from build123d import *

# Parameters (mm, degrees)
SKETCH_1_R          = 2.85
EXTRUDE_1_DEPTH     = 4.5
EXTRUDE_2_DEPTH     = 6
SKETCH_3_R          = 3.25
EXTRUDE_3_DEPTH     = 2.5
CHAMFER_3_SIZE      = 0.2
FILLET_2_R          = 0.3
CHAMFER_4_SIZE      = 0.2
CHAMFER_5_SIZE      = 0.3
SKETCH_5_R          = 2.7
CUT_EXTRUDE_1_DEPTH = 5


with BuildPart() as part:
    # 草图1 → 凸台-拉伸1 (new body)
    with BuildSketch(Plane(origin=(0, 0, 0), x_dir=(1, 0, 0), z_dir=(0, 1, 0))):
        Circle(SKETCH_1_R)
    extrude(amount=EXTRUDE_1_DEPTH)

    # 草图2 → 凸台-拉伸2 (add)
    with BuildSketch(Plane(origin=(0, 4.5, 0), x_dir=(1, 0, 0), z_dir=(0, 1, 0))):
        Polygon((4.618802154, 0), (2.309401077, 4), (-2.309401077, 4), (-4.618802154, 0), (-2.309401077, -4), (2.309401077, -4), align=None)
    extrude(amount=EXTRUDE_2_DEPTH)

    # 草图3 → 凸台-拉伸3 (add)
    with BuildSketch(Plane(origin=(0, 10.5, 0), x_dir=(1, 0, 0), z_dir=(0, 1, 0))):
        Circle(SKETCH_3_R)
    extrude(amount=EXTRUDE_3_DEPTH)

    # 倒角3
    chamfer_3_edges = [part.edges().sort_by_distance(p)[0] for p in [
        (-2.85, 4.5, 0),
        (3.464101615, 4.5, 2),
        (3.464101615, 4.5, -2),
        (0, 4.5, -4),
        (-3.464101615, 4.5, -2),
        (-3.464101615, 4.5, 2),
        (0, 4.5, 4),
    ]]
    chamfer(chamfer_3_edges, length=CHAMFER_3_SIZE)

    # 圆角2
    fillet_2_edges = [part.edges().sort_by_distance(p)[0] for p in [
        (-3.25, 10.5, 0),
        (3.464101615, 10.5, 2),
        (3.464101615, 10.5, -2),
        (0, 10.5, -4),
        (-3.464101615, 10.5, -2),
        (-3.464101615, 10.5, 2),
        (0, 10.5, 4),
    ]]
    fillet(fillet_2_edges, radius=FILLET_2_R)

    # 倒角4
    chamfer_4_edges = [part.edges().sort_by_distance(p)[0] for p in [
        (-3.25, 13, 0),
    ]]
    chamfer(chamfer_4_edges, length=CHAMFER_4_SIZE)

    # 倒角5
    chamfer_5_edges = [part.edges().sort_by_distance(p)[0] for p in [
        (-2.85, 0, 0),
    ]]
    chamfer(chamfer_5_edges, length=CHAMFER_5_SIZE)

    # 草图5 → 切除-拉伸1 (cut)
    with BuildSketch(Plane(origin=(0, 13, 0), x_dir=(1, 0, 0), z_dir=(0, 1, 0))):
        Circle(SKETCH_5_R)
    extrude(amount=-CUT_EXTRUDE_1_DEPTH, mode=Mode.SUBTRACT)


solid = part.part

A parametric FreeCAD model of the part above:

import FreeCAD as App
import Part
import Sketcher
Q = App.Units.Quantity


def edges_at(feature, points):
    """Names of the edges that pass closest to the given points."""
    edges = feature.Shape.Edges
    near = lambda p: min(range(len(edges)), key=lambda i: edges[i].distToShape(Part.Vertex(*p))[0])
    return sorted({f"Edge{near(p) + 1}" for p in points})

doc = App.newDocument("Part")
body = doc.addObject("PartDesign::Body", "Body")

# Sketch on XZ plane
sketch1 = doc.addObject("Sketcher::SketchObject", "Sketch")
body.addObject(sketch1)
sketch1.AttachmentSupport = (doc.XZ_Plane, [""])
sketch1.MapMode = "FlatFace"
sketch1.addGeometry(Part.Circle(App.Vector(0, 0, 0), App.Vector(0, 0, 1), 2.9), False)
sketch1.addConstraint(Sketcher.Constraint("Coincident", 0, 3, -1, 1))
sketch1.addConstraint(Sketcher.Constraint("Diameter", 0, 5.7))
pad1 = doc.addObject("PartDesign::Pad", "Pad")
body.addObject(pad1)
pad1.Profile = sketch1
pad1.Length = 4.5
pad1.Reversed = True

# Sketch on XZ plane
sketch2 = doc.addObject("Sketcher::SketchObject", "Sketch001")
body.addObject(sketch2)
sketch2.AttachmentSupport = (doc.XZ_Plane, [""])
sketch2.MapMode = "FlatFace"
sketch2.AttachmentOffset = App.Placement(App.Vector(0, 0, -4.5), App.Rotation())
sketch2.addGeometry(Part.LineSegment(App.Vector(4.6, 0, 0), App.Vector(2.3, -4, 0)), False)
sketch2.addGeometry(Part.LineSegment(App.Vector(2.3, -4, 0), App.Vector(-2.3, -4, 0)), False)
sketch2.addGeometry(Part.LineSegment(App.Vector(-2.3, -4, 0), App.Vector(-4.6, 0, 0)), False)
sketch2.addGeometry(Part.LineSegment(App.Vector(-4.6, 0, 0), App.Vector(-2.3, 4, 0)), False)
sketch2.addGeometry(Part.LineSegment(App.Vector(-2.3, 4, 0), App.Vector(2.3, 4, 0)), False)
sketch2.addGeometry(Part.LineSegment(App.Vector(2.3, 4, 0), App.Vector(4.6, 0, 0)), False)
sketch2.addConstraint(Sketcher.Constraint("Coincident", 0, 2, 1, 1))
sketch2.addConstraint(Sketcher.Constraint("Coincident", 1, 2, 2, 1))
sketch2.addConstraint(Sketcher.Constraint("Coincident", 2, 2, 3, 1))
sketch2.addConstraint(Sketcher.Constraint("Coincident", 3, 2, 4, 1))
sketch2.addConstraint(Sketcher.Constraint("Coincident", 4, 2, 5, 1))
sketch2.addConstraint(Sketcher.Constraint("Coincident", 5, 2, 0, 1))
sketch2.addConstraint(Sketcher.Constraint("Horizontal", 1))
sketch2.addConstraint(Sketcher.Constraint("Horizontal", 4))
sketch2.addConstraint(Sketcher.Constraint("Symmetric", 0, 2, 3, 2, -1, 1))
sketch2.addConstraint(Sketcher.Constraint("Symmetric", 2, 2, 5, 2, -1, 1))
sketch2.addConstraint(Sketcher.Constraint("PointOnObject", 2, 2, -1))
sketch2.addConstraint(Sketcher.Constraint("Parallel", 2, 5))
sketch2.addConstraint(Sketcher.Constraint("Vertical", 1, 2, 3, 2))
sketch2.addConstraint(Sketcher.Constraint("Angle", 0, Q("-120 deg")))
sketch2.addConstraint(Sketcher.Constraint("DistanceY", 0, 2, -1, 1, 4.0))
sketch2.addConstraint(Sketcher.Constraint("DistanceX", -1, 1, 0, 2, 2.309401))
pad2 = doc.addObject("PartDesign::Pad", "Pad001")
body.addObject(pad2)
pad2.Profile = sketch2
pad2.Length = 6
pad2.Reversed = True

# Sketch on XZ plane
sketch3 = doc.addObject("Sketcher::SketchObject", "Sketch002")
body.addObject(sketch3)
sketch3.AttachmentSupport = (doc.XZ_Plane, [""])
sketch3.MapMode = "FlatFace"
sketch3.AttachmentOffset = App.Placement(App.Vector(0, 0, -10.5), App.Rotation())
sketch3.addGeometry(Part.Circle(App.Vector(0, 0, 0), App.Vector(0, 0, 1), 3.2), False)
sketch3.addConstraint(Sketcher.Constraint("Coincident", 0, 3, -1, 1))
sketch3.addConstraint(Sketcher.Constraint("Diameter", 0, 6.5))
pad3 = doc.addObject("PartDesign::Pad", "Pad002")
body.addObject(pad3)
pad3.Profile = sketch3
pad3.Length = 2.5
pad3.Reversed = True
doc.recompute()

chamfer = doc.addObject("PartDesign::Chamfer", "Chamfer")
body.addObject(chamfer)
chamfer.Base = (pad3, edges_at(pad3, [
    (-2.85, 4.5, 0),
    (3.464, 4.5, 2),
    (3.464, 4.5, -2),
    (0, 4.5, -4),
    (-3.464, 4.5, -2),
    (-3.464, 4.5, 2),
    (0, 4.5, 4),
]))
chamfer.Size = 0.2
doc.recompute()

fillet = doc.addObject("PartDesign::Fillet", "Fillet")
body.addObject(fillet)
fillet.Base = (chamfer, edges_at(chamfer, [
    (-3.25, 10.5, 0),
    (3.464, 10.5, 2),
    (3.464, 10.5, -2),
    (0, 10.5, -4),
    (-3.464, 10.5, -2),
    (-3.464, 10.5, 2),
    (0, 10.5, 4),
]))
fillet.Radius = 0.3
doc.recompute()

chamfer2 = doc.addObject("PartDesign::Chamfer", "Chamfer001")
body.addObject(chamfer2)
chamfer2.Base = (fillet, edges_at(fillet, [(-3.25, 13, 0)]))
chamfer2.Size = 0.2
doc.recompute()

chamfer3 = doc.addObject("PartDesign::Chamfer", "Chamfer002")
body.addObject(chamfer3)
chamfer3.Base = (chamfer2, edges_at(chamfer2, [(-2.85, 0, 0)]))
chamfer3.Size = 0.3

# Sketch on XZ plane
sketch4 = doc.addObject("Sketcher::SketchObject", "Sketch003")
body.addObject(sketch4)
sketch4.AttachmentSupport = (doc.XZ_Plane, [""])
sketch4.MapMode = "FlatFace"
sketch4.AttachmentOffset = App.Placement(App.Vector(0, 0, -13), App.Rotation())
sketch4.addGeometry(Part.Circle(App.Vector(0, 0, 0), App.Vector(0, 0, 1), 2.7), False)
sketch4.addConstraint(Sketcher.Constraint("Coincident", 0, 3, -1, 1))
sketch4.addConstraint(Sketcher.Constraint("Diameter", 0, 5.4))
pocket1 = doc.addObject("PartDesign::Pocket", "Pocket")
body.addObject(pocket1)
pocket1.Profile = sketch4
pocket1.Length = 5
pocket1.Reversed = True

doc.recompute()
